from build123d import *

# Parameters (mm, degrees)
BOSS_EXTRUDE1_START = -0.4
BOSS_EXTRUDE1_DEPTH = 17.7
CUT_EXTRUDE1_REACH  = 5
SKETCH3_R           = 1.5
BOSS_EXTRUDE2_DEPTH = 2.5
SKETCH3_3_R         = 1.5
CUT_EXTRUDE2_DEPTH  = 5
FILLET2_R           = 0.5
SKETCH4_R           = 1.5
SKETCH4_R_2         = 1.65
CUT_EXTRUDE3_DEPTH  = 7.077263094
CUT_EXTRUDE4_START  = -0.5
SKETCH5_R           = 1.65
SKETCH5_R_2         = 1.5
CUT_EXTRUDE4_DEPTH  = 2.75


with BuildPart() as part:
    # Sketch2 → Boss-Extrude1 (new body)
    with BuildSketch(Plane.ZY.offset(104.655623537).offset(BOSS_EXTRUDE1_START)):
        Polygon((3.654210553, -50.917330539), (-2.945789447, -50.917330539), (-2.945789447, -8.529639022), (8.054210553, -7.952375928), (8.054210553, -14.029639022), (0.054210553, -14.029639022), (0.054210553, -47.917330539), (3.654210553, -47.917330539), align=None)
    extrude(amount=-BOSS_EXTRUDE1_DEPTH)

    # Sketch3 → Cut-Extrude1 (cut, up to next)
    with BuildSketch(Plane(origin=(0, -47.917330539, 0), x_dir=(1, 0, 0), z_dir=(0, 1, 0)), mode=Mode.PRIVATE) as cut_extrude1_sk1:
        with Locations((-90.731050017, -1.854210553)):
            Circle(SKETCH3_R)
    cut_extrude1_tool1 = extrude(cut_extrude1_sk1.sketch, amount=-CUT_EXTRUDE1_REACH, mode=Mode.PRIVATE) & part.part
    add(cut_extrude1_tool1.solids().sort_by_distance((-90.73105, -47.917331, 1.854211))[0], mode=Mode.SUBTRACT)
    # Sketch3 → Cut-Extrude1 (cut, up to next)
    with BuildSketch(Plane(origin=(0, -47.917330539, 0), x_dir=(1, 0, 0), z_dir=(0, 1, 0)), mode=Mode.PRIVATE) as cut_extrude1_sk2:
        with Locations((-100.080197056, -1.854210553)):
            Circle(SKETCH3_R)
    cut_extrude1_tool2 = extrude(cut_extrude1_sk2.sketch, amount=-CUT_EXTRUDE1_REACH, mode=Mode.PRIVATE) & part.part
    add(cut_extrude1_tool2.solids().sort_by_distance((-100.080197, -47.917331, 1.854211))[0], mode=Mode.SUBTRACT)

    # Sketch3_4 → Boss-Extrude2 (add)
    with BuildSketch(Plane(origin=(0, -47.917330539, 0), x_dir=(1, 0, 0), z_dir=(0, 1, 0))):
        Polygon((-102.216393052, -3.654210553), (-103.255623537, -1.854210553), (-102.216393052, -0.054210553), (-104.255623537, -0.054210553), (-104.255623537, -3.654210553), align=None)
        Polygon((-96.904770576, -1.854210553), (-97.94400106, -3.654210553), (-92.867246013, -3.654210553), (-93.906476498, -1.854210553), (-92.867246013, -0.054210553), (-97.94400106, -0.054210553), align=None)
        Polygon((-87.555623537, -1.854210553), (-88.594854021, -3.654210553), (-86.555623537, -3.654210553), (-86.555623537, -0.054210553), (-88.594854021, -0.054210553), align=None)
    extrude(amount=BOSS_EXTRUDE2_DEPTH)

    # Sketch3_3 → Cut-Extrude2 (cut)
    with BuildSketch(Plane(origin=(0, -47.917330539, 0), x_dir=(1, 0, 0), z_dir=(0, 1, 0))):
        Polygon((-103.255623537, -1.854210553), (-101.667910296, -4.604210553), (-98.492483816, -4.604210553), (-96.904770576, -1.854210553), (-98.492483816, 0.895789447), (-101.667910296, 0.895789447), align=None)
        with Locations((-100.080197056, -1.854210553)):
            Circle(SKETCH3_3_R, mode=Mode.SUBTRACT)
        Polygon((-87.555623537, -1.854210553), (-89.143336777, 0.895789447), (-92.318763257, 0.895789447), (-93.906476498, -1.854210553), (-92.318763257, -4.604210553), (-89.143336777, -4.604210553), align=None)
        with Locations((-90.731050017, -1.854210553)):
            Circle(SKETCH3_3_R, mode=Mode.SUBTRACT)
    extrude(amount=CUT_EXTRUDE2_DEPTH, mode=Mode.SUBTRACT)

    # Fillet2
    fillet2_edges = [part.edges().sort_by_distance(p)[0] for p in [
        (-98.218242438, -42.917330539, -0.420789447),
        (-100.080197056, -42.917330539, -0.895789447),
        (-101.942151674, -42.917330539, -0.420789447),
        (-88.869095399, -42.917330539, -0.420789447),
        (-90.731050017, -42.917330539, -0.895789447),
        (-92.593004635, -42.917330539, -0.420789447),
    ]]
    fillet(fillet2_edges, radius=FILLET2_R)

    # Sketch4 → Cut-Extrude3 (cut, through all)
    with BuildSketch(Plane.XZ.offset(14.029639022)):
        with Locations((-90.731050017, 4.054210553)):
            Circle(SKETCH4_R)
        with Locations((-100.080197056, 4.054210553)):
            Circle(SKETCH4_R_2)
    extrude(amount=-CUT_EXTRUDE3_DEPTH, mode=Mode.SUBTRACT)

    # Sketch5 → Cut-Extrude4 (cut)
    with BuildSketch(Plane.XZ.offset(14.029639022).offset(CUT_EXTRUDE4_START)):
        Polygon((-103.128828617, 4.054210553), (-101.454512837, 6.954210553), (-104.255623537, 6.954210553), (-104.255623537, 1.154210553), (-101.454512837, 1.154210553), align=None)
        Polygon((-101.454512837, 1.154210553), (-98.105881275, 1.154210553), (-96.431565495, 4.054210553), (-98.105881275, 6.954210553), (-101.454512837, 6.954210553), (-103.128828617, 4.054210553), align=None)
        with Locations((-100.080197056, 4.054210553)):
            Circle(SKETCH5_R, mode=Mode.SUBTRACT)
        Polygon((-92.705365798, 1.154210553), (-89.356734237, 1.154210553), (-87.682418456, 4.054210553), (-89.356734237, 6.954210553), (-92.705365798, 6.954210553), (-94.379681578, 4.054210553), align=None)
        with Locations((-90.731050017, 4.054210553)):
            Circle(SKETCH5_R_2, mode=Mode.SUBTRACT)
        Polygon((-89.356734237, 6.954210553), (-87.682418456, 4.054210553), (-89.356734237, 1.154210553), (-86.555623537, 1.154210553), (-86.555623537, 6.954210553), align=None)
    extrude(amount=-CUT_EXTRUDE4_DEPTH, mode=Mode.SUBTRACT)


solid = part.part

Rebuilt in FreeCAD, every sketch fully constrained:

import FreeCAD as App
import Part
import Sketcher
from FreeCAD import Vector
Q = App.Units.Quantity


def edges_at(feature, points):
    """Names of the edges that pass closest to the given points."""
    edges = feature.Shape.Edges
    near = lambda p: min(range(len(edges)), key=lambda i: edges[i].distToShape(Part.Vertex(*p))[0])
    return sorted({f"Edge{near(p) + 1}" for p in points})


def add_polygon(sketch, points):
    """Adds a closed chain of lines whose ends are joined by coincident constraints."""
    first, n = sketch.GeometryCount, len(points)
    for a, b in zip(points, points[1:] + points[:1]):
        sketch.addGeometry(Part.LineSegment(App.Vector(*a, 0), App.Vector(*b, 0)), False)
    for i in range(n):
        sketch.addConstraint(Sketcher.Constraint("Coincident", first + i, 2, first + (i + 1) % n, 1))

doc = App.newDocument("Part")
body = doc.addObject("PartDesign::Body", "Body")

sketch1 = doc.addObject("Sketcher::SketchObject", "Sketch")
body.addObject(sketch1)
sketch1.AttachmentSupport = (doc.YZ_Plane, [""])
sketch1.MapMode = "FlatFace"
sketch1.AttachmentOffset = App.Placement(Vector(0, 0, -104.255624), App.Rotation())
add_polygon(sketch1, [(-50.9, -2.9), (-50.9, 3.7), (-47.9, 3.7), (-47.9, 0.1), (-14, 0.1), (-14, 8.1), (-8, 8.1), (-8.5, -2.9)])
sketch1.addConstraint([
    Sketcher.Constraint("Vertical", 0),
    Sketcher.Constraint("Horizontal", 1),
    Sketcher.Constraint("Vertical", 2),
    Sketcher.Constraint("Horizontal", 3),
    Sketcher.Constraint("Vertical", 4),
    Sketcher.Constraint("Horizontal", 5),
    Sketcher.Constraint("Horizontal", 7),
    Sketcher.Constraint("DistanceX", 1, 1, 1, 2, 3.0),
    Sketcher.Constraint("DistanceY", 4, 1, 4, 2, 8.0),
    Sketcher.Constraint("DistanceY", 0, 1, 0, 2, 6.6),
    Sketcher.Constraint("DistanceY", 2, 2, 2, 1, 3.6),
    Sketcher.Constraint("DistanceX", 3, 2, 6, 2, 5.5),
    Sketcher.Constraint("DistanceX", 3, 1, 3, 2, 33.887692),
    Sketcher.Constraint("DistanceX", 5, 1, 5, 2, 6.077263),
    Sketcher.Constraint("DistanceX", 0, 2, -1, 1, 50.917331),
    Sketcher.Constraint("DistanceY", -1, 1, 0, 2, 3.654211),
])
pad1 = doc.addObject("PartDesign::Pad", "Pad")
body.addObject(pad1)
pad1.Profile = sketch1
pad1.Length = 17.7

sketch2 = doc.addObject("Sketcher::SketchObject", "Sketch001")
body.addObject(sketch2)
sketch2.AttachmentSupport = (doc.XZ_Plane, [""])
sketch2.MapMode = "FlatFace"
sketch2.AttachmentOffset = App.Placement(Vector(0, 0, 47.917331), App.Rotation())
sketch2.addGeometry(Part.Circle(Vector(-90.7, 1.9, 0), Vector(0, 0, 1), 1.5), False)
sketch2.addConstraint([
    Sketcher.Constraint("Diameter", 0, 3.0),
    Sketcher.Constraint("DistanceX", 0, 3, -1, 1, 90.73105),
    Sketcher.Constraint("DistanceY", -1, 1, 0, 3, 1.854211),
])
pocket1 = doc.addObject("PartDesign::Pocket", "Pocket")
body.addObject(pocket1)
pocket1.Profile = sketch2
pocket1.Type = "UpToFirst"
pocket1.Reversed = True

sketch3 = doc.addObject("Sketcher::SketchObject", "Sketch002")
body.addObject(sketch3)
sketch3.AttachmentSupport = (doc.XZ_Plane, [""])
sketch3.MapMode = "FlatFace"
sketch3.AttachmentOffset = App.Placement(Vector(0, 0, 47.917331), App.Rotation())
sketch3.addGeometry(Part.Circle(Vector(-100.1, 1.9, 0), Vector(0, 0, 1), 1.5), False)
sketch3.addConstraint([
    Sketcher.Constraint("Diameter", 0, 3.0),
    Sketcher.Constraint("DistanceY", -1, 1, 0, 3, 1.854211),
    Sketcher.Constraint("DistanceX", 0, 3, -1, 1, 100.080197),
])
pocket2 = doc.addObject("PartDesign::Pocket", "Pocket001")
body.addObject(pocket2)
pocket2.Profile = sketch3
pocket2.Type = "UpToFirst"
pocket2.Reversed = True

sketch4 = doc.addObject("Sketcher::SketchObject", "Sketch003")
body.addObject(sketch4)
sketch4.AttachmentSupport = (doc.XZ_Plane, [""])
sketch4.MapMode = "FlatFace"
sketch4.AttachmentOffset = App.Placement(Vector(0, 0, 47.917331), App.Rotation())
add_polygon(sketch4, [(-102.2, 3.7), (-103.3, 1.9), (-102.2, 0.1), (-104.3, 0.1), (-104.3, 3.7)])
add_polygon(sketch4, [(-96.9, 1.9), (-97.9, 3.7), (-92.9, 3.7), (-93.9, 1.9), (-92.9, 0.1), (-97.9, 0.1)])
add_polygon(sketch4, [(-87.6, 1.9), (-88.6, 3.7), (-86.6, 3.7), (-86.6, 0.1), (-88.6, 0.1)])
sketch4.addConstraint([
    Sketcher.Constraint("Horizontal", 2),
    Sketcher.Constraint("Vertical", 3),
    Sketcher.Constraint("Horizontal", 4),
    Sketcher.Constraint("Horizontal", 6),
    Sketcher.Constraint("Horizontal", 9),
    Sketcher.Constraint("Horizontal", 12),
    Sketcher.Constraint("Vertical", 13),
    Sketcher.Constraint("Horizontal", 14),
    Sketcher.Constraint("Parallel", 1, 5),
    Sketcher.Constraint("Parallel", 0, 7),
    Sketcher.Constraint("Parallel", 5, 8),
    Sketcher.Constraint("Parallel", 7, 10),
    Sketcher.Constraint("Parallel", 8, 11),
    Sketcher.Constraint("Parallel", 10, 15),
    Sketcher.Constraint("Horizontal", 4, 2, 5, 2),
    Sketcher.Constraint("Horizontal", 0, 2, 7, 2),
    Sketcher.Constraint("Horizontal", 2, 2, 8, 2),
    Sketcher.Constraint("Horizontal", 7, 2, 10, 2),
    Sketcher.Constraint("Horizontal", 6, 2, 11, 2),
    Sketcher.Constraint("Horizontal", 9, 2, 13, 2),
    Sketcher.Constraint("Horizontal", 10, 2, 15, 2),
    Sketcher.Constraint("Vertical", 1, 2, 4, 2),
    Sketcher.Constraint("Vertical", 5, 2, 9, 2),
    Sketcher.Constraint("Equal", 4, 12),
    Sketcher.Constraint("Angle", 0, Q("-120 deg")),
    Sketcher.Constraint("DistanceY", 3, 1, 3, 2, 3.6),
    Sketcher.Constraint("DistanceX", 2, 2, 0, 2, 1.0),
    Sketcher.Constraint("DistanceX", 5, 2, -1, 1, 97.944001),
    Sketcher.Constraint("DistanceX", 6, 1, 6, 2, 5.076755),
    Sketcher.Constraint("DistanceY", -1, 1, 0, 2, 1.854211),
    Sketcher.Constraint("DistanceX", 4, 2, 5, 2, 4.272392),
    Sketcher.Constraint("DistanceX", 6, 2, 11, 2, 4.272392),
])
pad2 = doc.addObject("PartDesign::Pad", "Pad001")
body.addObject(pad2)
pad2.Profile = sketch4
pad2.Length = 2.5
pad2.Reversed = True

sketch5 = doc.addObject("Sketcher::SketchObject", "Sketch004")
body.addObject(sketch5)
sketch5.AttachmentSupport = (doc.XZ_Plane, [""])
sketch5.MapMode = "FlatFace"
sketch5.AttachmentOffset = App.Placement(Vector(0, 0, 47.917331), App.Rotation())
add_polygon(sketch5, [(-103.3, 1.9), (-101.7, 4.6), (-98.5, 4.6), (-96.9, 1.9), (-98.5, -0.9), (-101.7, -0.9)])
sketch5.addGeometry(Part.Circle(Vector(-100.1, 1.9, 0), Vector(0, 0, 1), 1.5), False)
add_polygon(sketch5, [(-87.6, 1.9), (-89.1, -0.9), (-92.3, -0.9), (-93.9, 1.9), (-92.3, 4.6), (-89.1, 4.6)])
sketch5.addGeometry(Part.Circle(Vector(-90.7, 1.9, 0), Vector(0, 0, 1), 1.5), False)
sketch5.addConstraint([
    Sketcher.Constraint("Horizontal", 1),
    Sketcher.Constraint("Horizontal", 4),
    Sketcher.Constraint("Horizontal", 8),
    Sketcher.Constraint("Horizontal", 11),
    Sketcher.Constraint("Equal", 6, 13),
    Sketcher.Constraint("Parallel", 0, 3),
    Sketcher.Constraint("Parallel", 2, 5),
    Sketcher.Constraint("Parallel", 3, 7),
    Sketcher.Constraint("Parallel", 5, 9),
    Sketcher.Constraint("Parallel", 7, 10),
    Sketcher.Constraint("Parallel", 9, 12),
    Sketcher.Constraint("Horizontal", 6, 3, 13, 3),
    Sketcher.Constraint("Horizontal", 13, 3, 2, 2),
    Sketcher.Constraint("Horizontal", 2, 2, 5, 2),
    Sketcher.Constraint("Horizontal", 4, 2, 7, 2),
    Sketcher.Constraint("Horizontal", 5, 2, 9, 2),
    Sketcher.Constraint("Horizontal", 1, 2, 10, 2),
    Sketcher.Constraint("Horizontal", 9, 2, 12, 2),
    Sketcher.Constraint("Vertical", 1, 2, 3, 2),
    Sketcher.Constraint("Vertical", 0, 2, 4, 2),
    Sketcher.Constraint("Equal", 4, 8),
    Sketcher.Constraint("Diameter", 6, 3.0),
    Sketcher.Constraint("Angle", 0, Q("60 deg")),
    Sketcher.Constraint("DistanceY", 3, 2, 1, 2, 5.5),
    Sketcher.Constraint("DistanceX", 1, 1, 1, 2, 3.175426),
    Sketcher.Constraint("DistanceY", -1, 1, 6, 3, 1.854211),
    Sketcher.Constraint("DistanceX", 13, 3, -1, 1, 90.73105),
    Sketcher.Constraint("DistanceX", 0, 2, -1, 1, 101.66791),
    Sketcher.Constraint("DistanceX", 6, 3, 7, 2, 10.93686),
    Sketcher.Constraint("DistanceX", 3, 2, 8, 2, 6.173721),
])
pocket3 = doc.addObject("PartDesign::Pocket", "Pocket002")
body.addObject(pocket3)
pocket3.Profile = sketch5
pocket3.Length = 5
doc.recompute()

fillet = doc.addObject("PartDesign::Fillet", "Fillet")
body.addObject(fillet)
fillet.Base = (pocket3, edges_at(pocket3, [
    (-98.218, -42.917, -0.421),
    (-100.08, -42.917, -0.896),
    (-101.942, -42.917, -0.421),
    (-88.869, -42.917, -0.421),
    (-90.731, -42.917, -0.896),
    (-92.593, -42.917, -0.421),
]))
fillet.Radius = 0.5

sketch6 = doc.addObject("Sketcher::SketchObject", "Sketch005")
body.addObject(sketch6)
sketch6.AttachmentSupport = (doc.XZ_Plane, [""])
sketch6.MapMode = "FlatFace"
sketch6.AttachmentOffset = App.Placement(Vector(0, 0, 14.029639), App.Rotation())
sketch6.addGeometry([
    Part.Circle(Vector(-90.7, 4.1, 0), Vector(0, 0, 1), 1.5),
    Part.Circle(Vector(-100.1, 4.1, 0), Vector(0, 0, 1), 1.6),
], False)
sketch6.addConstraint([
    Sketcher.Constraint("Horizontal", 0, 3, 1, 3),
    Sketcher.Constraint("Diameter", 0, 3.0),
    Sketcher.Constraint("Diameter", 1, 3.3),
    Sketcher.Constraint("DistanceX", 0, 3, -1, 1, 90.73105),
    Sketcher.Constraint("DistanceY", -1, 1, 0, 3, 4.054211),
    Sketcher.Constraint("DistanceX", 1, 3, -1, 1, 100.080197),
])
pocket4 = doc.addObject("PartDesign::Pocket", "Pocket003")
body.addObject(pocket4)
pocket4.Profile = sketch6
pocket4.Type = "ThroughAll"

sketch7 = doc.addObject("Sketcher::SketchObject", "Sketch006")
body.addObject(sketch7)
sketch7.AttachmentSupport = (doc.XZ_Plane, [""])
sketch7.MapMode = "FlatFace"
sketch7.AttachmentOffset = App.Placement(Vector(0, 0, 13.529639), App.Rotation())
add_polygon(sketch7, [(-104.3, 7), (-104.3, 1.2), (-98.1, 1.2), (-96.4, 4.1), (-98.1, 7)])
sketch7.addGeometry(Part.Circle(Vector(-100.1, 4.1, 0), Vector(0, 0, 1), 1.6), False)
add_polygon(sketch7, [(-92.7, 1.2), (-86.6, 1.2), (-86.6, 7), (-92.7, 7), (-94.4, 4.1)])
sketch7.addGeometry(Part.Circle(Vector(-90.7, 4.1, 0), Vector(0, 0, 1), 1.5), False)
sketch7.addConstraint([
    Sketcher.Constraint("Vertical", 0),
    Sketcher.Constraint("Horizontal", 1),
    Sketcher.Constraint("Horizontal", 4),
    Sketcher.Constraint("Horizontal", 6),
    Sketcher.Constraint("Vertical", 7),
    Sketcher.Constraint("Horizontal", 8),
    Sketcher.Constraint("Parallel", 2, 9),
    Sketcher.Constraint("Parallel", 3, 10),
    Sketcher.Constraint("Horizontal", 5, 3, 11, 3),
    Sketcher.Constraint("Horizontal", 11, 3, 2, 2),
    Sketcher.Constraint("Horizontal", 1, 2, 6, 2),
    Sketcher.Constraint("Horizontal", 4, 2, 7, 2),
    Sketcher.Constraint("Horizontal", 2, 2, 9, 2),
    Sketcher.Constraint("Vertical", 1, 2, 3, 2),
    Sketcher.Constraint("Vertical", 8, 2, 10, 2),
    Sketcher.Constraint("Equal", 4, 6),
    Sketcher.Constraint("Diameter", 11, 3.0),
    Sketcher.Constraint("Diameter", 5, 3.3),
    Sketcher.Constraint("Angle", 2, Q("60 deg")),
    Sketcher.Constraint("DistanceY", 0, 2, 0, 1, 5.8),
    Sketcher.Constraint("DistanceX", 2, 2, 8, 2, 3.7262),
    Sketcher.Constraint("DistanceX", 1, 1, 1, 2, 6.149742),
    Sketcher.Constraint("DistanceY", -1, 1, 5, 3, 4.054211),
    Sketcher.Constraint("DistanceX", 11, 3, -1, 1, 90.73105),
    Sketcher.Constraint("DistanceX", 1, 2, -1, 1, 98.105881),
    Sketcher.Constraint("DistanceX", 5, 3, 2, 2, 3.648632),
])
pocket5 = doc.addObject("PartDesign::Pocket", "Pocket004")
body.addObject(pocket5)
pocket5.Profile = sketch7
pocket5.Length = 2.75

doc.recompute()
